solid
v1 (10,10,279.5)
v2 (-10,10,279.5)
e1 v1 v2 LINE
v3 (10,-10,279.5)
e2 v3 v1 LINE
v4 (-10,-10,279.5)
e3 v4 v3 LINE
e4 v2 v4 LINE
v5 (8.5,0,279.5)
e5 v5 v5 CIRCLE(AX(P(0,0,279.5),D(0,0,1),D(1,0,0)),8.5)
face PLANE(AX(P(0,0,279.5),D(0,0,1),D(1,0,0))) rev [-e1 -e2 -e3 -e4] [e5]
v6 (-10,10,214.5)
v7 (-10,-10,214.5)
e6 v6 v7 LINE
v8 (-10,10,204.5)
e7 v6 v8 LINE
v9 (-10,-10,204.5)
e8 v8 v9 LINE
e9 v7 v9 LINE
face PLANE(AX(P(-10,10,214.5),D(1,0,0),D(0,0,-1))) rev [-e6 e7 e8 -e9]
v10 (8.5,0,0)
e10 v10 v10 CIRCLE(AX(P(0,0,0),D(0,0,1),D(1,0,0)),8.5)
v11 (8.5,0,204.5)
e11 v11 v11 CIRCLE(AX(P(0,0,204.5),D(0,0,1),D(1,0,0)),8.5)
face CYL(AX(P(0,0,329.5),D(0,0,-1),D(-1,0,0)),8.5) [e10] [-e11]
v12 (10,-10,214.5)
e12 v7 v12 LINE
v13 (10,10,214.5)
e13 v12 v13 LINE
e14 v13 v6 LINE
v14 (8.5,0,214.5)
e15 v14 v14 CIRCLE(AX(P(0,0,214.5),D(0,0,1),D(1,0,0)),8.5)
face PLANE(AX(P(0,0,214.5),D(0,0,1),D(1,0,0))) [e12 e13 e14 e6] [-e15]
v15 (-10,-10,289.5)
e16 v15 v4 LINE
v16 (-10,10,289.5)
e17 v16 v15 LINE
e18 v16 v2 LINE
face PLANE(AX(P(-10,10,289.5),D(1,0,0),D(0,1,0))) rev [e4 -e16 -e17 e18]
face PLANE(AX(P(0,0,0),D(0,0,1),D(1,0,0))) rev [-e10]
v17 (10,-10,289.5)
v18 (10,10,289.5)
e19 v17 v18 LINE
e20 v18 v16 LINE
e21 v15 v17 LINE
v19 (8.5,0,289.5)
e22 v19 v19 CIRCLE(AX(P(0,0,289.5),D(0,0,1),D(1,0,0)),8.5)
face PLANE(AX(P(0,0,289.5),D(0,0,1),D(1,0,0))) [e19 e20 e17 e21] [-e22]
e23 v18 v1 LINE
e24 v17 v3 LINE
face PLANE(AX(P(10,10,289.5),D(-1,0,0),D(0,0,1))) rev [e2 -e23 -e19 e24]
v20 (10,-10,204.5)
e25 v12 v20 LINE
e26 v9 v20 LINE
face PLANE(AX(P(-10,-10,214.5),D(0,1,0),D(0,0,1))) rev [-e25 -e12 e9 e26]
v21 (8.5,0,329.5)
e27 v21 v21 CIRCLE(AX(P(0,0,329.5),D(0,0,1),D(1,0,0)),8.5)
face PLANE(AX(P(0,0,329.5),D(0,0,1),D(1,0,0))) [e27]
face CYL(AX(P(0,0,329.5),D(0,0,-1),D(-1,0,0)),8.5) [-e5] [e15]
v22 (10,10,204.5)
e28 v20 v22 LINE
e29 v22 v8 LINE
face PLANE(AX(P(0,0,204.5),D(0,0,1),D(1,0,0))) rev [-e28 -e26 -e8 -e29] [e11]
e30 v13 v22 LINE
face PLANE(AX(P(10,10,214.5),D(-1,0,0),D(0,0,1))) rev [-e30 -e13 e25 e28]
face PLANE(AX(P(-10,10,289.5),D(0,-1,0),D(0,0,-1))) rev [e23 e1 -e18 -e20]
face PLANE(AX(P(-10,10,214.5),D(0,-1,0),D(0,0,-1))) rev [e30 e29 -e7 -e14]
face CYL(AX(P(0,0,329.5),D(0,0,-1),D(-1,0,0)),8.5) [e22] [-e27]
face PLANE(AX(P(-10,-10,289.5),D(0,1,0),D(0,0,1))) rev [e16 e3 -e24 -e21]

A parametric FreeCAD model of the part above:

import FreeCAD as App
import Part
import Sketcher
from FreeCAD import Vector
Q = App.Units.Quantity

doc = App.newDocument("Part")
params = doc.addObject("Spreadsheet::Sheet", "Params")
for row, (alias, value) in enumerate([
    ("sketch1_diameter", "17 mm"),
    ("pad1_length", "329.5 mm"),
    ("sketch2_width", "20 mm"),
    ("pad2_length", "10 mm"),
    ("sketch3_width", "20 mm"),
    ("pad3_length", "10 mm"),
], start=1):
    params.set(f"A{row}", alias)
    params.set(f"B{row}", "=" + value)
    params.setAlias(f"B{row}", alias)

body = doc.addObject("PartDesign::Body", "Body")

# Sketch on XY plane
sketch1 = body.newObject("Sketcher::SketchObject", "Sketch")
sketch1.AttachmentSupport = (doc.getObject("XY_Plane"), [""])
sketch1.MapMode = "FlatFace"
sketch1.addGeometry(Part.Circle(Vector(0, 0, 0), Vector(0, 0, 1), 8.5), False)
sketch1.addConstraint(Sketcher.Constraint("Coincident", 0, 3, -1, 1))
sketch1.addConstraint(Sketcher.Constraint("Diameter", 0, Q("17 mm")))
sketch1.setExpression("Constraints[1]", "Params.sketch1_diameter")
pad1 = body.newObject("PartDesign::Pad", "Pad")
pad1.Profile = sketch1
pad1.setExpression("Length", "Params.pad1_length")

# Sketch on XY plane
sketch2 = body.newObject("Sketcher::SketchObject", "Sketch001")
sketch2.AttachmentSupport = (doc.getObject("XY_Plane"), [""])
sketch2.MapMode = "FlatFace"
sketch2.AttachmentOffset = App.Placement(Vector(0, 0, 279.5), App.Rotation())
sketch2.addGeometry(Part.LineSegment(Vector(-10, 10, 0), Vector(-10, -10, 0)), False)
sketch2.addGeometry(Part.LineSegment(Vector(-10, -10, 0), Vector(10, -10, 0)), False)
sketch2.addGeometry(Part.LineSegment(Vector(10, -10, 0), Vector(10, 10, 0)), False)
sketch2.addGeometry(Part.LineSegment(Vector(10, 10, 0), Vector(-10, 10, 0)), False)
sketch2.addConstraint(Sketcher.Constraint("Coincident", 0, 2, 1, 1))
sketch2.addConstraint(Sketcher.Constraint("Coincident", 1, 2, 2, 1))
sketch2.addConstraint(Sketcher.Constraint("Coincident", 2, 2, 3, 1))
sketch2.addConstraint(Sketcher.Constraint("Coincident", 3, 2, 0, 1))
sketch2.addConstraint(Sketcher.Constraint("Vertical", 0))
sketch2.addConstraint(Sketcher.Constraint("Horizontal", 1))
sketch2.addConstraint(Sketcher.Constraint("Vertical", 2))
sketch2.addConstraint(Sketcher.Constraint("Horizontal", 3))
sketch2.addConstraint(Sketcher.Constraint("Symmetric", 0, 2, 2, 2, -1, 1))
sketch2.addConstraint(Sketcher.Constraint("Equal", 3, 0))
sketch2.addConstraint(Sketcher.Constraint("DistanceX", 1, 1, 1, 2, Q("20 mm")))
sketch2.setExpression("Constraints[10]", "Params.sketch2_width")
pad2 = body.newObject("PartDesign::Pad", "Pad001")
pad2.Profile = sketch2
pad2.setExpression("Length", "Params.pad2_length")

# Sketch on XY plane
sketch3 = body.newObject("Sketcher::SketchObject", "Sketch002")
sketch3.AttachmentSupport = (doc.getObject("XY_Plane"), [""])
sketch3.MapMode = "FlatFace"
sketch3.AttachmentOffset = App.Placement(Vector(0, 0, 204.5), App.Rotation())
sketch3.addGeometry(Part.LineSegment(Vector(-10, 10, 0), Vector(-10, -10, 0)), False)
sketch3.addGeometry(Part.LineSegment(Vector(-10, -10, 0), Vector(10, -10, 0)), False)
sketch3.addGeometry(Part.LineSegment(Vector(10, -10, 0), Vector(10, 10, 0)), False)
sketch3.addGeometry(Part.LineSegment(Vector(10, 10, 0), Vector(-10, 10, 0)), False)
sketch3.addConstraint(Sketcher.Constraint("Coincident", 0, 2, 1, 1))
sketch3.addConstraint(Sketcher.Constraint("Coincident", 1, 2, 2, 1))
sketch3.addConstraint(Sketcher.Constraint("Coincident", 2, 2, 3, 1))
sketch3.addConstraint(Sketcher.Constraint("Coincident", 3, 2, 0, 1))
sketch3.addConstraint(Sketcher.Constraint("Vertical", 0))
sketch3.addConstraint(Sketcher.Constraint("Horizontal", 1))
sketch3.addConstraint(Sketcher.Constraint("Vertical", 2))
sketch3.addConstraint(Sketcher.Constraint("Horizontal", 3))
sketch3.addConstraint(Sketcher.Constraint("Symmetric", 0, 2, 2, 2, -1, 1))
sketch3.addConstraint(Sketcher.Constraint("Equal", 3, 0))
sketch3.addConstraint(Sketcher.Constraint("DistanceX", 1, 1, 1, 2, Q("20 mm")))
sketch3.setExpression("Constraints[10]", "Params.sketch3_width")
pad3 = body.newObject("PartDesign::Pad", "Pad002")
pad3.Profile = sketch3
pad3.setExpression("Length", "Params.pad3_length")

doc.recompute()
